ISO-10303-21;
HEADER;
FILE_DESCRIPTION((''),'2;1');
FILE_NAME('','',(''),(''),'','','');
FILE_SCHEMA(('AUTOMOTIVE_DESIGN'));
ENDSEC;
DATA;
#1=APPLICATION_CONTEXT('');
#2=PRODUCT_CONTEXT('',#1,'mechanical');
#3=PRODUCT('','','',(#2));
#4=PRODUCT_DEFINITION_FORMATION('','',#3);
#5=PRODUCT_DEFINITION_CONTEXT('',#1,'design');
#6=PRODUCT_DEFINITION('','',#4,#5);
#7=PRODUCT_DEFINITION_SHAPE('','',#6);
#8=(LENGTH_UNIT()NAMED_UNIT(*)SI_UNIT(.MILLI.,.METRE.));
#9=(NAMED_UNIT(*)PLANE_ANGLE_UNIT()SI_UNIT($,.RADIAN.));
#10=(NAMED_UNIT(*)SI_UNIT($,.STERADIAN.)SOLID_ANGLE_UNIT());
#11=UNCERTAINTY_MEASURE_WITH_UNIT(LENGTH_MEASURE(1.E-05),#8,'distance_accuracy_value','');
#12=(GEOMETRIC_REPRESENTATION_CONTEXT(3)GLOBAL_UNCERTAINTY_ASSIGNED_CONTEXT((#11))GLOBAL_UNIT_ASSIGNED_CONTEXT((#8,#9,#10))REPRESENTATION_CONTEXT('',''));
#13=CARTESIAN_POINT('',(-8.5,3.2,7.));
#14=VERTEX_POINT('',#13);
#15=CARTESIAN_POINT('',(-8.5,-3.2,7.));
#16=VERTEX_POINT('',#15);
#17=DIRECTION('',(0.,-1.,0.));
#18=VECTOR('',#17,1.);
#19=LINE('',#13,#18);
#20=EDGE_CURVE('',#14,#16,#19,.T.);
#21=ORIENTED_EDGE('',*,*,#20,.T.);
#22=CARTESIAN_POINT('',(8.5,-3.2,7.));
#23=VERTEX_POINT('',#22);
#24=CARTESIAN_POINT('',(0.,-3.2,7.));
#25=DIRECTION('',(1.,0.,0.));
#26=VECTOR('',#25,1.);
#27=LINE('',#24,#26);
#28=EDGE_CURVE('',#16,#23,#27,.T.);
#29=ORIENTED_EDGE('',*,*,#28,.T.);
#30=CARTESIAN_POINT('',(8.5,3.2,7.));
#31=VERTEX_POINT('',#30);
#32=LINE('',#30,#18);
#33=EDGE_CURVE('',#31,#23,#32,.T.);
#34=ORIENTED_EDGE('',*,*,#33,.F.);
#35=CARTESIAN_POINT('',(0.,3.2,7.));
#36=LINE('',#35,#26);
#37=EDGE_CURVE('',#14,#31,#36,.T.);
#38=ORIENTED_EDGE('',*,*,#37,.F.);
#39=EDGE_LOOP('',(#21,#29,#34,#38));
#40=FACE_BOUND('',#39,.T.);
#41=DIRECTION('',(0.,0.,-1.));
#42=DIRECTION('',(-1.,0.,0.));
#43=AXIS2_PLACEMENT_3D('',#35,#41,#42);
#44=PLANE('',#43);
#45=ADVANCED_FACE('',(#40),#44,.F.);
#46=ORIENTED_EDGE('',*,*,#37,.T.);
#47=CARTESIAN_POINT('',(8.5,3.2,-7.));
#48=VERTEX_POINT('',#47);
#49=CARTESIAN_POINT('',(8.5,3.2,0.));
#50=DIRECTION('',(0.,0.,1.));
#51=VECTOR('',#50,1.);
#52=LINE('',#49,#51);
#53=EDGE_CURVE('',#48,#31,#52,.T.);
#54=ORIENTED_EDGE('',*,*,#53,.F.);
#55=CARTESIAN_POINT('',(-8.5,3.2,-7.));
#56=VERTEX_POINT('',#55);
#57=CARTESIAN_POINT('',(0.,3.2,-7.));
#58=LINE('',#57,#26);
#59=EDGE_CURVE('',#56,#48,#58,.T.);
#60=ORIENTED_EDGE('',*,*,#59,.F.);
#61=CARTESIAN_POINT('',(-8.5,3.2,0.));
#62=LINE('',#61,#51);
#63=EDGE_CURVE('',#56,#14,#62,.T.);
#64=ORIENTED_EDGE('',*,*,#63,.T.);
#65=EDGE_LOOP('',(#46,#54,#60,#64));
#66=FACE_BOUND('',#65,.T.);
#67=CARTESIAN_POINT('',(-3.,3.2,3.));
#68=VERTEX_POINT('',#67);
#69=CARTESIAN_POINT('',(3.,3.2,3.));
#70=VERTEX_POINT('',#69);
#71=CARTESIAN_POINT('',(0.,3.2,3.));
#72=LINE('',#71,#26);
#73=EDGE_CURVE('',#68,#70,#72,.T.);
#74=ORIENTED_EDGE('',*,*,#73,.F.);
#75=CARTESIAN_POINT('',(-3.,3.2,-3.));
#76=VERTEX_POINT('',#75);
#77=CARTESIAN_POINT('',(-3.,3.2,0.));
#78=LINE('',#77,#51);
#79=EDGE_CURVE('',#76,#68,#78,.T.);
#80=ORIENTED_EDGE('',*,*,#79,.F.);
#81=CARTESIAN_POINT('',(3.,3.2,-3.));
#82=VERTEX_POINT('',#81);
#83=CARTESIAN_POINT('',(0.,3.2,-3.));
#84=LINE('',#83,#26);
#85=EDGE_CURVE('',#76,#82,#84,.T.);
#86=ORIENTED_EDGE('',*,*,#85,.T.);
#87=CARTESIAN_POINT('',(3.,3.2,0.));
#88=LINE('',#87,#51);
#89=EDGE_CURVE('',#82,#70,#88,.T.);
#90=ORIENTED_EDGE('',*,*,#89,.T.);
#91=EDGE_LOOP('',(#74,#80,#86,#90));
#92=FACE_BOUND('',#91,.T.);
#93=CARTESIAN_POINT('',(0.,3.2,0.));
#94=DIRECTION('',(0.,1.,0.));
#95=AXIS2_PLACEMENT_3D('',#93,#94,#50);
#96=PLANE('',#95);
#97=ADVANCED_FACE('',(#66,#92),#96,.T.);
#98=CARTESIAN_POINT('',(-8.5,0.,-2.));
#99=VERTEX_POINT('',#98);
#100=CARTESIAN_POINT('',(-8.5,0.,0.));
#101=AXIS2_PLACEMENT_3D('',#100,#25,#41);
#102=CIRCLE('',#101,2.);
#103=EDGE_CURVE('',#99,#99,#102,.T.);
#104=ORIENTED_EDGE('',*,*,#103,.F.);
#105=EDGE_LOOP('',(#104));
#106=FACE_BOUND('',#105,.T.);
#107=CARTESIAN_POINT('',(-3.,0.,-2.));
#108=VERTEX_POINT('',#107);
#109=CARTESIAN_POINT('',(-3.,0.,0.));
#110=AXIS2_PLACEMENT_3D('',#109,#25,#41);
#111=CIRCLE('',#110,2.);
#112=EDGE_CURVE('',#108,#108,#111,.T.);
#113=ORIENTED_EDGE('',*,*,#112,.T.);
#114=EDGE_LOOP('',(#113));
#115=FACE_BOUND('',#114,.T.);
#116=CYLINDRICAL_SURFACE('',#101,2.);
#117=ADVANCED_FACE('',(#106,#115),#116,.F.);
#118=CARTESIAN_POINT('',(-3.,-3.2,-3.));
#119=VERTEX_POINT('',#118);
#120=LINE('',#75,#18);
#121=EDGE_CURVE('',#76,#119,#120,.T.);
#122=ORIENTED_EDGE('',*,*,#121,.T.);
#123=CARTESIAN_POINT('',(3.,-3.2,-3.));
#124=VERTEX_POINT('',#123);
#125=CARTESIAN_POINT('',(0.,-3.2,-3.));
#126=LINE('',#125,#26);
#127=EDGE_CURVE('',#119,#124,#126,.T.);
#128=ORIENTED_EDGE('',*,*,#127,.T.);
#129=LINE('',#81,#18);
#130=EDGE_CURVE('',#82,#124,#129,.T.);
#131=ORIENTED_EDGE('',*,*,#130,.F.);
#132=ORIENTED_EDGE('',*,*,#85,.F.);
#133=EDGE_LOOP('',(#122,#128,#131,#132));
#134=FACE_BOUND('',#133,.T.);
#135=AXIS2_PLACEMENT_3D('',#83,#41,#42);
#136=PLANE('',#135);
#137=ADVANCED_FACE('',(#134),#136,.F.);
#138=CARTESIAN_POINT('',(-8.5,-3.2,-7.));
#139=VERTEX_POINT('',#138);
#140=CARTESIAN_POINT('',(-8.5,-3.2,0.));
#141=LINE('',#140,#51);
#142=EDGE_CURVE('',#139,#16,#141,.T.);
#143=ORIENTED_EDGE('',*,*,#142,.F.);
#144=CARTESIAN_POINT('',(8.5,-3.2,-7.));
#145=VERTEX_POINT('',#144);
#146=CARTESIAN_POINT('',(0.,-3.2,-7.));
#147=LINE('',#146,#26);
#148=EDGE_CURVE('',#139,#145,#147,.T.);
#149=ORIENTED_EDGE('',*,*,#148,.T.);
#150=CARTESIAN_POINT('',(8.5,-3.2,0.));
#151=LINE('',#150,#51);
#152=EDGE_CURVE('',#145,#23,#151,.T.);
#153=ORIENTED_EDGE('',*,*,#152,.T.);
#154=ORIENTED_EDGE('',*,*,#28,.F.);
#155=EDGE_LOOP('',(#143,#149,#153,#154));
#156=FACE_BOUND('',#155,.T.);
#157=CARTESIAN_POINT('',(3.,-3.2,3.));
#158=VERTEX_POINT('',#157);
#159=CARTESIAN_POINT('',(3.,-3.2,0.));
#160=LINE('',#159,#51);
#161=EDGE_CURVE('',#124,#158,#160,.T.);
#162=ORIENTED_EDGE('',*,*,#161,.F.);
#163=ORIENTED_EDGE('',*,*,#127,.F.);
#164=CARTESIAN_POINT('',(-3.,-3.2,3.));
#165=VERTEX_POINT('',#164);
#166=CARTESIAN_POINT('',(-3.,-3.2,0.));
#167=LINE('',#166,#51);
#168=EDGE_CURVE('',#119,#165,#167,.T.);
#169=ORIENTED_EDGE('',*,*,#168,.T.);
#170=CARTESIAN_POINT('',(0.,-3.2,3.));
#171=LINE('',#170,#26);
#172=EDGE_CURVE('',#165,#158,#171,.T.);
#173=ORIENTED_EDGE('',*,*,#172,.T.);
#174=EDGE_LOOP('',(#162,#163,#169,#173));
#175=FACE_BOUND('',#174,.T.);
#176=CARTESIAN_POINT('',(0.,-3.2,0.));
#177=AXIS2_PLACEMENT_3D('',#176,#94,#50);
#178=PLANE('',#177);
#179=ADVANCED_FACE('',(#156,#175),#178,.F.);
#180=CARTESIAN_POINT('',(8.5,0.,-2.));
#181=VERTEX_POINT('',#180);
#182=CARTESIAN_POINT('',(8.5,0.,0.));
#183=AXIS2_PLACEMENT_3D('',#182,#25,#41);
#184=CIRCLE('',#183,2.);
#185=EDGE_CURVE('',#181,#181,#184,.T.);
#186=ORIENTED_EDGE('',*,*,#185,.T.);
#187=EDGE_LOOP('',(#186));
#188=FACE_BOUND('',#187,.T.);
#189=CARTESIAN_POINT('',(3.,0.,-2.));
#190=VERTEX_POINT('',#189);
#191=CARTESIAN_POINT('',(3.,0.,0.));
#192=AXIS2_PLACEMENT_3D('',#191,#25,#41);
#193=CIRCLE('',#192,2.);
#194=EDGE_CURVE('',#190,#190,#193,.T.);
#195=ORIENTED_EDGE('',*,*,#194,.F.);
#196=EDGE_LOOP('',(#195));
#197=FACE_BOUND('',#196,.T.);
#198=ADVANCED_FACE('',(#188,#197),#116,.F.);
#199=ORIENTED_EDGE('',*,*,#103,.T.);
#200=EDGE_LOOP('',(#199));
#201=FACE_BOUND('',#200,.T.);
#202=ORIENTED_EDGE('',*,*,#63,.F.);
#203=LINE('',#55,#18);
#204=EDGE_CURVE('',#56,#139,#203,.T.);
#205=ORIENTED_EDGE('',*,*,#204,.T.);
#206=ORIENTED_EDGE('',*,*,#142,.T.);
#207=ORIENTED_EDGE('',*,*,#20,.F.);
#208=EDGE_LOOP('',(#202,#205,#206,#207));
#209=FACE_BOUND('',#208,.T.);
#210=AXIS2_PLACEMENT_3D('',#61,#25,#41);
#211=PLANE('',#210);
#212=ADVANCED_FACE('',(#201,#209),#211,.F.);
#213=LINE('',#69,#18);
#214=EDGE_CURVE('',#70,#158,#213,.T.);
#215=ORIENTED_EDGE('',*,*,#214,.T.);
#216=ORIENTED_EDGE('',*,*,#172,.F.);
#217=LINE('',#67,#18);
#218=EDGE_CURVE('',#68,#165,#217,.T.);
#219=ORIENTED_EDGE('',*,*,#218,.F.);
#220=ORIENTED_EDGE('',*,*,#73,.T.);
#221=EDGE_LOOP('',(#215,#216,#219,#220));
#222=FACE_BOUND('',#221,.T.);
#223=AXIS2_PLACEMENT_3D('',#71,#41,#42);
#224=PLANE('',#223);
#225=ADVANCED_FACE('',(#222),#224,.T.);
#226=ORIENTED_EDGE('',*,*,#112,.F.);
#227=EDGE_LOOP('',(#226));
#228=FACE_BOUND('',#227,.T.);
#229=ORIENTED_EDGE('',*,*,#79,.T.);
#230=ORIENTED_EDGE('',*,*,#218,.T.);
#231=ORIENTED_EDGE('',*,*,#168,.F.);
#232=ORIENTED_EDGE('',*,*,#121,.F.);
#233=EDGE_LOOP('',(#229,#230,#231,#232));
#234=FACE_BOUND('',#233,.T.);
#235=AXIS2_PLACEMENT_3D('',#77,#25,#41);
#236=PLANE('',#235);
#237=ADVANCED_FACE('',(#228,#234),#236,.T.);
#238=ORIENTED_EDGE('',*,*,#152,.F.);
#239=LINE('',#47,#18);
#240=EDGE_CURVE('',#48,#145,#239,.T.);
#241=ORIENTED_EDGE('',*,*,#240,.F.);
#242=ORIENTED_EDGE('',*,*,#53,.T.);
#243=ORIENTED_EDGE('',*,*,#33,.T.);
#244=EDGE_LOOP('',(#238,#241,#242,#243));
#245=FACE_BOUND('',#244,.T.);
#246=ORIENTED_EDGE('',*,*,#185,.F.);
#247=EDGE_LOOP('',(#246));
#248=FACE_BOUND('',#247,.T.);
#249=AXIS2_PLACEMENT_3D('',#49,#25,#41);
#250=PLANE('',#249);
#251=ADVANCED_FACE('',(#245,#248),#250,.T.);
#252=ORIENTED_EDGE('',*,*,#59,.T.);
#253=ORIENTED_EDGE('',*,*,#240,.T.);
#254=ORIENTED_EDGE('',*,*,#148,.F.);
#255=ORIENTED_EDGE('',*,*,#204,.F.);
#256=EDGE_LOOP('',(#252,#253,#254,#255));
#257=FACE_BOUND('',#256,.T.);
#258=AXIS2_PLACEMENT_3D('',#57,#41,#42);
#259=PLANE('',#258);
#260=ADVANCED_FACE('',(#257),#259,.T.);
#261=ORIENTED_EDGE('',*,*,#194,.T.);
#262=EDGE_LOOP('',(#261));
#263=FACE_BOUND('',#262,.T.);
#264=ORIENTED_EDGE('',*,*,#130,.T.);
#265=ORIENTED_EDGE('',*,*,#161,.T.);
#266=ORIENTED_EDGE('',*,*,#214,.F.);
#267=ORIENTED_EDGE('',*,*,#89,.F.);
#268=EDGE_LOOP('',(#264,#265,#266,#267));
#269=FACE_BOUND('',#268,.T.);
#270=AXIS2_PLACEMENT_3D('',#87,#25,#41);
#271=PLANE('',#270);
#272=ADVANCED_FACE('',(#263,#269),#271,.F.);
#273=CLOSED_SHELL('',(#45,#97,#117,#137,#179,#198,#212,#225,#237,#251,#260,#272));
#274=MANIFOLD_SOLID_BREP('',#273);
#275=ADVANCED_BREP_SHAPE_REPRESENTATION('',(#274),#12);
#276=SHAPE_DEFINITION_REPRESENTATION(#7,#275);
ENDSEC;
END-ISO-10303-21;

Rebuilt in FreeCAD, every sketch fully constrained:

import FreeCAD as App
import Part
import Sketcher

doc = App.newDocument("Part")
body = doc.addObject("PartDesign::Body", "Body")

# Sketch on XZ plane
sketch1 = body.newObject("Sketcher::SketchObject", "Sketch")
sketch1.AttachmentSupport = (doc.getObject("XZ_Plane"), [""])
sketch1.MapMode = "FlatFace"
sketch1.addGeometry([
    Part.LineSegment(App.Vector(-8, -7, 0), App.Vector(-8, 7, 0)),  # 0
    Part.LineSegment(App.Vector(-8, 7, 0), App.Vector(8, 7, 0)),  # 1
    Part.LineSegment(App.Vector(8, 7, 0), App.Vector(8, -7, 0)),  # 2
    Part.LineSegment(App.Vector(8, -7, 0), App.Vector(-8, -7, 0)),  # 3
    Part.LineSegment(App.Vector(3, 3, 0), App.Vector(-3, 3, 0)),  # 4
    Part.LineSegment(App.Vector(-3, 3, 0), App.Vector(-3, -3, 0)),  # 5
    Part.LineSegment(App.Vector(-3, -3, 0), App.Vector(3, -3, 0)),  # 6
    Part.LineSegment(App.Vector(3, -3, 0), App.Vector(3, 3, 0)),  # 7
], False)
sketch1.addConstraint([
    Sketcher.Constraint("Coincident", 0, 2, 1, 1),
    Sketcher.Constraint("Coincident", 1, 2, 2, 1),
    Sketcher.Constraint("Coincident", 2, 2, 3, 1),
    Sketcher.Constraint("Coincident", 3, 2, 0, 1),
    Sketcher.Constraint("Coincident", 4, 2, 5, 1),
    Sketcher.Constraint("Coincident", 5, 2, 6, 1),
    Sketcher.Constraint("Coincident", 6, 2, 7, 1),
    Sketcher.Constraint("Coincident", 7, 2, 4, 1),
    Sketcher.Constraint("Vertical", 0),
    Sketcher.Constraint("Horizontal", 1),
    Sketcher.Constraint("Vertical", 2),
    Sketcher.Constraint("Horizontal", 3),
    Sketcher.Constraint("Horizontal", 4),
    Sketcher.Constraint("Vertical", 5),
    Sketcher.Constraint("Horizontal", 6),
    Sketcher.Constraint("Vertical", 7),
    Sketcher.Constraint("Symmetric", 0, 2, 2, 2, -1, 1),
    Sketcher.Constraint("Symmetric", 4, 2, 6, 2, -1, 1),
    Sketcher.Constraint("Equal", 6, 5),
    Sketcher.Constraint("DistanceX", 1, 1, 1, 2, 17.0),
    Sketcher.Constraint("DistanceX", 4, 2, 4, 1, 6.0),
    Sketcher.Constraint("DistanceY", 0, 1, 0, 2, 14.0),
])
pad1 = body.newObject("PartDesign::Pad", "Pad")
pad1.Profile = sketch1
pad1.Length = 6.4
pad1.Midplane = True

# Sketch on YZ plane
sketch2 = body.newObject("Sketcher::SketchObject", "Sketch001")
sketch2.AttachmentSupport = (doc.getObject("YZ_Plane"), [""])
sketch2.MapMode = "FlatFace"
sketch2.addGeometry(Part.Circle(App.Vector(0, 0, 0), App.Vector(0, 0, 1), 2), False)
sketch2.addConstraint([
    Sketcher.Constraint("Coincident", 0, 3, -1, 1),
    Sketcher.Constraint("Diameter", 0, 4.0),
])
pocket1 = body.newObject("PartDesign::Pocket", "Pocket")
pocket1.Profile = sketch2
pocket1.Type = "ThroughAll"
pocket1.Midplane = True

doc.recompute()
